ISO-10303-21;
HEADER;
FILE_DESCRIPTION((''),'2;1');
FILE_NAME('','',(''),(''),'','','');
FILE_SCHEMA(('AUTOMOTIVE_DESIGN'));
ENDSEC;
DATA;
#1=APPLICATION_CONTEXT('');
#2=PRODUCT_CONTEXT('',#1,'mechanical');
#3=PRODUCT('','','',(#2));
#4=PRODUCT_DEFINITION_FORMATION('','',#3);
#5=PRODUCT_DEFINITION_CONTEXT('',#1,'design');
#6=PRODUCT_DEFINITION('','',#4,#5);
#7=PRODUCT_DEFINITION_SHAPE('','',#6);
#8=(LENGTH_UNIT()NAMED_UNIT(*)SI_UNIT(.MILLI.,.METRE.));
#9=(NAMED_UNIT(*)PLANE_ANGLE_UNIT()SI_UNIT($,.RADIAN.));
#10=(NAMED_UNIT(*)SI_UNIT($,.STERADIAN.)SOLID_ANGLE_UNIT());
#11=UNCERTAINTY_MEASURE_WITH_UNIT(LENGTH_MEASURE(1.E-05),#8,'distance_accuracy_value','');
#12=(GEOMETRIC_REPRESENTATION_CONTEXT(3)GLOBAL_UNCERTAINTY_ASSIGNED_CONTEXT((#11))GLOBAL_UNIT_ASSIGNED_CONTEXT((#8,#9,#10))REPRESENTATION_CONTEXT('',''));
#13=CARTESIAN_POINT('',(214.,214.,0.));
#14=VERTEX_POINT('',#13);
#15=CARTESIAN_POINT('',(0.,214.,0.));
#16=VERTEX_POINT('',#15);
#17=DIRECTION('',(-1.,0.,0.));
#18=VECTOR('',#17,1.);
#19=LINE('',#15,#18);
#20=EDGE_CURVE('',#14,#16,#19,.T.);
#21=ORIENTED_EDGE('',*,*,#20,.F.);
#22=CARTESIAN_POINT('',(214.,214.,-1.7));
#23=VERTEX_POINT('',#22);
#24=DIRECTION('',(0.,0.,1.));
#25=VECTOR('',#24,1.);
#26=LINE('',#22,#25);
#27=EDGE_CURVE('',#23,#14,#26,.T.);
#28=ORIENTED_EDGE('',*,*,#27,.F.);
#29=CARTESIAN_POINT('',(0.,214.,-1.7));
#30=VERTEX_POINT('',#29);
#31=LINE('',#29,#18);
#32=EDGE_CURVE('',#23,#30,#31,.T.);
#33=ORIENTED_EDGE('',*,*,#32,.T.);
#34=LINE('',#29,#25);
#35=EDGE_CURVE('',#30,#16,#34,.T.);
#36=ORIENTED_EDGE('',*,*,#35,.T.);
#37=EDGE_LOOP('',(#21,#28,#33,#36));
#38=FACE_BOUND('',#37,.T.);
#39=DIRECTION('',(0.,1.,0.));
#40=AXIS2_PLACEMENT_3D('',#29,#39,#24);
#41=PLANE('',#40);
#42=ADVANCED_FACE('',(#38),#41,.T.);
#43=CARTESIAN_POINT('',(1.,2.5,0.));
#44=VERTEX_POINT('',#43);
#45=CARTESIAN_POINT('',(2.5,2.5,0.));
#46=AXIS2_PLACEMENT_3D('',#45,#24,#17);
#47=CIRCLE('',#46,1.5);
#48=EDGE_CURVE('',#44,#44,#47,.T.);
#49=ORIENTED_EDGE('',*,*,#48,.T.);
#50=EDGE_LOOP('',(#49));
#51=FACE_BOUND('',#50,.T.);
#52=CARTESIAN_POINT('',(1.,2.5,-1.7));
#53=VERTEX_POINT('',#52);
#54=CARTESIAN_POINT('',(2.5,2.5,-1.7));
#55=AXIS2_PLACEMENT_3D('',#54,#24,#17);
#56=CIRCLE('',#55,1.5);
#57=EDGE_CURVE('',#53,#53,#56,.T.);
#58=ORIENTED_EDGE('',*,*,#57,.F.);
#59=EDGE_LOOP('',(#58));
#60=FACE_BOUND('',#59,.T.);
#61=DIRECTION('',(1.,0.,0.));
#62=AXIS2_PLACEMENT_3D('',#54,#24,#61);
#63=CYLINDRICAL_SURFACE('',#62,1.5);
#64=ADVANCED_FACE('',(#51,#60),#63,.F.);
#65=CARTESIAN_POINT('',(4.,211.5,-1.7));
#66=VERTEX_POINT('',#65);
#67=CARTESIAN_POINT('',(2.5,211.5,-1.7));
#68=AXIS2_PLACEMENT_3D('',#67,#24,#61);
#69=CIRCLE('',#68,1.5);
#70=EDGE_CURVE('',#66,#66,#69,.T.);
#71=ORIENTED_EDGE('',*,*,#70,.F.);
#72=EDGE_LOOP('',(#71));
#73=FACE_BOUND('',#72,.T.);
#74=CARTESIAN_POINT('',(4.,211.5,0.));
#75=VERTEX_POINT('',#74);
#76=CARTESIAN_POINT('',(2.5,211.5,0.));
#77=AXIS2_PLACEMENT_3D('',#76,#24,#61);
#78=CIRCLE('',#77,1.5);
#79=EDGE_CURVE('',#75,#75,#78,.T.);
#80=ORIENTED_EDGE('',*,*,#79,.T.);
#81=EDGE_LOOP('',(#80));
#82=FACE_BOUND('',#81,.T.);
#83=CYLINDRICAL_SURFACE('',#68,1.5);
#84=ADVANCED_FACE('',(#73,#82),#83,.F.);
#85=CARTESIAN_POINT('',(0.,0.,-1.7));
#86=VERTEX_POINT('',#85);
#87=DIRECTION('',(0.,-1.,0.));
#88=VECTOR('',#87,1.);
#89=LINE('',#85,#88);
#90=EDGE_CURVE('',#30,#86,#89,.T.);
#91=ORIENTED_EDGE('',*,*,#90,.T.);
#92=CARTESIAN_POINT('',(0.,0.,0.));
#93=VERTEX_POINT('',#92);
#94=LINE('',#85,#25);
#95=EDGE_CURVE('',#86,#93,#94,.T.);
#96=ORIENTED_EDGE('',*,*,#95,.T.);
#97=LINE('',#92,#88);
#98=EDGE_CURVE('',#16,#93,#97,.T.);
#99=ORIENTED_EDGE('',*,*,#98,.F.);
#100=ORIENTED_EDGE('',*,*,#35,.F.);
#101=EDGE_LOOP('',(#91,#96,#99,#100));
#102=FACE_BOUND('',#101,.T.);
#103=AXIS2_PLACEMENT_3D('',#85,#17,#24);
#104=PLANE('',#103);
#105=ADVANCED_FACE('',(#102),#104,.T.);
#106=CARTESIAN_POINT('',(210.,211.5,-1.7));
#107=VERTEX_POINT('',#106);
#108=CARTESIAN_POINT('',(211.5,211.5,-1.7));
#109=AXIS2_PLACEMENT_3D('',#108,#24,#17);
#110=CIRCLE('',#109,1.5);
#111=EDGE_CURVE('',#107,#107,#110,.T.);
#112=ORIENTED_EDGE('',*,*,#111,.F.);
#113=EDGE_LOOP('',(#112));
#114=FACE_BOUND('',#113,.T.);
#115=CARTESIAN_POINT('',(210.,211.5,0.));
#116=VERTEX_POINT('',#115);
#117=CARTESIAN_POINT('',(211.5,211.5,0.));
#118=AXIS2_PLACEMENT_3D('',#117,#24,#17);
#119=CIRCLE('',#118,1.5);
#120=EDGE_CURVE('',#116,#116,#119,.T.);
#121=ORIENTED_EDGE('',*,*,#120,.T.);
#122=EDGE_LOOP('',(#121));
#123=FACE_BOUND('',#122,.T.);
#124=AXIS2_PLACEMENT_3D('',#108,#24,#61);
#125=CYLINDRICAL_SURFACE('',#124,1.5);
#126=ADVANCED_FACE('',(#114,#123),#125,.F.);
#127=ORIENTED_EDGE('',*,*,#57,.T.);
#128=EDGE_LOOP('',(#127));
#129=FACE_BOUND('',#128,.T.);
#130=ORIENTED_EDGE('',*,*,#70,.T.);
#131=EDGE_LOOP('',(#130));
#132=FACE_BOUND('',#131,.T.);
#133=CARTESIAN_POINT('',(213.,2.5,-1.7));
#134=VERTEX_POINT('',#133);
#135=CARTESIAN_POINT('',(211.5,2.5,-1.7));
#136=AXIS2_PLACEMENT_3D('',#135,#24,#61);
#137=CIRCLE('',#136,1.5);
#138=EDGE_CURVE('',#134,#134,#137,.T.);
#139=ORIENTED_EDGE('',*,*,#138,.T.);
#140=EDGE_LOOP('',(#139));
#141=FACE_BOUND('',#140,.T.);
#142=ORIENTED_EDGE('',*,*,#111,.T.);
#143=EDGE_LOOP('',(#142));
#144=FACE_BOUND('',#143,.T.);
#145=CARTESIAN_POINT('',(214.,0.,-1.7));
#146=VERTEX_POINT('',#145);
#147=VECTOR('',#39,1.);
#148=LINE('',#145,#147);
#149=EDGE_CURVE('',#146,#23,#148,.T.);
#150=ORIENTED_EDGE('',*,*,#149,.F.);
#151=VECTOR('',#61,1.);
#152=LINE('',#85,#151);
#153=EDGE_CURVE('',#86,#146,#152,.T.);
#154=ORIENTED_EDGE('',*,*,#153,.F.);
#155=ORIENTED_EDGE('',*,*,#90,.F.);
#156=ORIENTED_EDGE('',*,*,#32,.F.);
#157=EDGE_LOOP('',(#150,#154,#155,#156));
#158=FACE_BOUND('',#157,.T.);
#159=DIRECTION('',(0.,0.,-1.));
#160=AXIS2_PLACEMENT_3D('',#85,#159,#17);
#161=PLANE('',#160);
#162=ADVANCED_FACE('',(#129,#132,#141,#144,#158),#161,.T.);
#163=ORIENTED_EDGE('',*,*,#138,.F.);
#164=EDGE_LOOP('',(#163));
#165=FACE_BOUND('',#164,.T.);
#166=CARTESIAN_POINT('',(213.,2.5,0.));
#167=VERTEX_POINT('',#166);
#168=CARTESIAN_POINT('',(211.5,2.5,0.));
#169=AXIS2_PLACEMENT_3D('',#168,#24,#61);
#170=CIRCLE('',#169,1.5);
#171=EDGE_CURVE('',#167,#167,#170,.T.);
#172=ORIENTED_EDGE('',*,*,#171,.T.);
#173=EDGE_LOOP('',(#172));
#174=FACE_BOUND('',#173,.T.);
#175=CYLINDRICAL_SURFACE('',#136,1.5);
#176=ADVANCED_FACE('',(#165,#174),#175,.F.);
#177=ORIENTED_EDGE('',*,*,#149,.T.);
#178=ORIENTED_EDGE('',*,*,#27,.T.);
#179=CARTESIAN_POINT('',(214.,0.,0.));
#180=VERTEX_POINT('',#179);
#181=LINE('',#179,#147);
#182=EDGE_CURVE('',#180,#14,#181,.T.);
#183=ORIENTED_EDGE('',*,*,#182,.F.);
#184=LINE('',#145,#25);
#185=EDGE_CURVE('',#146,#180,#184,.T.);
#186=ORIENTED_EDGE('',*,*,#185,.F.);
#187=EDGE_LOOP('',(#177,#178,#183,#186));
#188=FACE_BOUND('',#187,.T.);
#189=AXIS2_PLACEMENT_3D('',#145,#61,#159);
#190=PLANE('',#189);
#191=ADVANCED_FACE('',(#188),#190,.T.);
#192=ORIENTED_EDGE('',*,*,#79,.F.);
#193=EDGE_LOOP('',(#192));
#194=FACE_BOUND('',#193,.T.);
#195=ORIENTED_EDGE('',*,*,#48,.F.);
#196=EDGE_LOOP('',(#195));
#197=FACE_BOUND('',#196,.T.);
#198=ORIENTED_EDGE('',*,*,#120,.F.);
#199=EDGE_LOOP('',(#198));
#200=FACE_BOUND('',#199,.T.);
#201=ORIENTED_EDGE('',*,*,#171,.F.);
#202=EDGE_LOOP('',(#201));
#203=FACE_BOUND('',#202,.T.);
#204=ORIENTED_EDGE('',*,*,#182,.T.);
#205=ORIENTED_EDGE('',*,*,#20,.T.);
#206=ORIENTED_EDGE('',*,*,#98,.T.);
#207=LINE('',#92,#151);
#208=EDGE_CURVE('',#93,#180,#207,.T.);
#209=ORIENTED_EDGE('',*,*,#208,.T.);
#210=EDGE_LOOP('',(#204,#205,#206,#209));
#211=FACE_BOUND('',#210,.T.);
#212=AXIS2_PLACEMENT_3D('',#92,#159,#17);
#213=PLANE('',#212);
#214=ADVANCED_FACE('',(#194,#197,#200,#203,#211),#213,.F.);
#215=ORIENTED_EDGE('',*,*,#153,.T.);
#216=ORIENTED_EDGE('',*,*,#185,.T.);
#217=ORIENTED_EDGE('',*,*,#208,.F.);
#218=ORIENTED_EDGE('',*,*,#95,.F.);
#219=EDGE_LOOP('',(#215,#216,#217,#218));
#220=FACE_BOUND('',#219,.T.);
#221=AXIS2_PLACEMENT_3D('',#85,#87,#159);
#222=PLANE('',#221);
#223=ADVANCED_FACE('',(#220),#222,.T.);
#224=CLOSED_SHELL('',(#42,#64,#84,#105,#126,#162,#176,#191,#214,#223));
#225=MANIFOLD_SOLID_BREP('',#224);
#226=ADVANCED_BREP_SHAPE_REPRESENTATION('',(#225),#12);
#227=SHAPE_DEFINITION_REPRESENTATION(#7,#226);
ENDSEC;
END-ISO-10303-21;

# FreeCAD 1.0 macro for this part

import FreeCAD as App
import Part
import Sketcher

V = App.Vector
Q = App.Units.Quantity

doc = App.newDocument("Part")
body = doc.addObject("PartDesign::Body", "Body")

sketch1 = body.newObject("Sketcher::SketchObject", "Sketch")
sketch1.AttachmentSupport = (doc.getObject("XY_Plane"), [""])
sketch1.MapMode = "FlatFace"
sketch1.addGeometry(Part.LineSegment(V(0, 214, 0), V(0, 0, 0)), False)
sketch1.addGeometry(Part.LineSegment(V(0, 0, 0), V(214, 0, 0)), False)
sketch1.addGeometry(Part.LineSegment(V(214, 0, 0), V(214, 214, 0)), False)
sketch1.addGeometry(Part.LineSegment(V(214, 214, 0), V(0, 214, 0)), False)
sketch1.addGeometry(Part.Circle(V(2.5, 2.5, 0), V(0, 0, 1), 1.5), False)
sketch1.addGeometry(Part.Circle(V(211.5, 2.5, 0), V(0, 0, 1), 1.5), False)
sketch1.addGeometry(Part.Circle(V(2.5, 211.5, 0), V(0, 0, 1), 1.5), False)
sketch1.addGeometry(Part.Circle(V(211.5, 211.5, 0), V(0, 0, 1), 1.5), False)
sketch1.addConstraint(Sketcher.Constraint("Coincident", 0, 2, 1, 1))
sketch1.addConstraint(Sketcher.Constraint("Coincident", 1, 2, 2, 1))
sketch1.addConstraint(Sketcher.Constraint("Coincident", 2, 2, 3, 1))
sketch1.addConstraint(Sketcher.Constraint("Coincident", 3, 2, 0, 1))
sketch1.addConstraint(Sketcher.Constraint("Vertical", 0))
sketch1.addConstraint(Sketcher.Constraint("Horizontal", 1))
sketch1.addConstraint(Sketcher.Constraint("Vertical", 2))
sketch1.addConstraint(Sketcher.Constraint("Horizontal", 3))
sketch1.addConstraint(Sketcher.Constraint("Coincident", 0, 2, -1, 1))
sketch1.addConstraint(Sketcher.Constraint("Equal", 4, 5))
sketch1.addConstraint(Sketcher.Constraint("Equal", 5, 6))
sketch1.addConstraint(Sketcher.Constraint("Equal", 6, 7))
sketch1.addConstraint(Sketcher.Constraint("Horizontal", 4, 3, 5, 3))
sketch1.addConstraint(Sketcher.Constraint("Horizontal", 6, 3, 7, 3))
sketch1.addConstraint(Sketcher.Constraint("Vertical", 4, 3, 6, 3))
sketch1.addConstraint(Sketcher.Constraint("Vertical", 5, 3, 7, 3))
sketch1.addConstraint(Sketcher.Constraint("Equal", 3, 0))
sketch1.addConstraint(Sketcher.Constraint("Diameter", 4, Q("3 mm")))
sketch1.addConstraint(Sketcher.Constraint("DistanceX", 1, 1, 1, 2, Q("214 mm")))
sketch1.addConstraint(Sketcher.Constraint("DistanceX", 4, 3, 5, 3, Q("209 mm")))
sketch1.addConstraint(Sketcher.Constraint("DistanceY", 4, 3, 6, 3, Q("209 mm")))
sketch1.addConstraint(Sketcher.Constraint("DistanceX", -1, 1, 4, 3, Q("2.5 mm")))
sketch1.addConstraint(Sketcher.Constraint("DistanceY", -1, 1, 4, 3, Q("2.5 mm")))
pad1 = body.newObject("PartDesign::Pad", "Pad")
pad1.Profile = sketch1
pad1.Length = 1.7
pad1.Reversed = True

doc.recompute()
